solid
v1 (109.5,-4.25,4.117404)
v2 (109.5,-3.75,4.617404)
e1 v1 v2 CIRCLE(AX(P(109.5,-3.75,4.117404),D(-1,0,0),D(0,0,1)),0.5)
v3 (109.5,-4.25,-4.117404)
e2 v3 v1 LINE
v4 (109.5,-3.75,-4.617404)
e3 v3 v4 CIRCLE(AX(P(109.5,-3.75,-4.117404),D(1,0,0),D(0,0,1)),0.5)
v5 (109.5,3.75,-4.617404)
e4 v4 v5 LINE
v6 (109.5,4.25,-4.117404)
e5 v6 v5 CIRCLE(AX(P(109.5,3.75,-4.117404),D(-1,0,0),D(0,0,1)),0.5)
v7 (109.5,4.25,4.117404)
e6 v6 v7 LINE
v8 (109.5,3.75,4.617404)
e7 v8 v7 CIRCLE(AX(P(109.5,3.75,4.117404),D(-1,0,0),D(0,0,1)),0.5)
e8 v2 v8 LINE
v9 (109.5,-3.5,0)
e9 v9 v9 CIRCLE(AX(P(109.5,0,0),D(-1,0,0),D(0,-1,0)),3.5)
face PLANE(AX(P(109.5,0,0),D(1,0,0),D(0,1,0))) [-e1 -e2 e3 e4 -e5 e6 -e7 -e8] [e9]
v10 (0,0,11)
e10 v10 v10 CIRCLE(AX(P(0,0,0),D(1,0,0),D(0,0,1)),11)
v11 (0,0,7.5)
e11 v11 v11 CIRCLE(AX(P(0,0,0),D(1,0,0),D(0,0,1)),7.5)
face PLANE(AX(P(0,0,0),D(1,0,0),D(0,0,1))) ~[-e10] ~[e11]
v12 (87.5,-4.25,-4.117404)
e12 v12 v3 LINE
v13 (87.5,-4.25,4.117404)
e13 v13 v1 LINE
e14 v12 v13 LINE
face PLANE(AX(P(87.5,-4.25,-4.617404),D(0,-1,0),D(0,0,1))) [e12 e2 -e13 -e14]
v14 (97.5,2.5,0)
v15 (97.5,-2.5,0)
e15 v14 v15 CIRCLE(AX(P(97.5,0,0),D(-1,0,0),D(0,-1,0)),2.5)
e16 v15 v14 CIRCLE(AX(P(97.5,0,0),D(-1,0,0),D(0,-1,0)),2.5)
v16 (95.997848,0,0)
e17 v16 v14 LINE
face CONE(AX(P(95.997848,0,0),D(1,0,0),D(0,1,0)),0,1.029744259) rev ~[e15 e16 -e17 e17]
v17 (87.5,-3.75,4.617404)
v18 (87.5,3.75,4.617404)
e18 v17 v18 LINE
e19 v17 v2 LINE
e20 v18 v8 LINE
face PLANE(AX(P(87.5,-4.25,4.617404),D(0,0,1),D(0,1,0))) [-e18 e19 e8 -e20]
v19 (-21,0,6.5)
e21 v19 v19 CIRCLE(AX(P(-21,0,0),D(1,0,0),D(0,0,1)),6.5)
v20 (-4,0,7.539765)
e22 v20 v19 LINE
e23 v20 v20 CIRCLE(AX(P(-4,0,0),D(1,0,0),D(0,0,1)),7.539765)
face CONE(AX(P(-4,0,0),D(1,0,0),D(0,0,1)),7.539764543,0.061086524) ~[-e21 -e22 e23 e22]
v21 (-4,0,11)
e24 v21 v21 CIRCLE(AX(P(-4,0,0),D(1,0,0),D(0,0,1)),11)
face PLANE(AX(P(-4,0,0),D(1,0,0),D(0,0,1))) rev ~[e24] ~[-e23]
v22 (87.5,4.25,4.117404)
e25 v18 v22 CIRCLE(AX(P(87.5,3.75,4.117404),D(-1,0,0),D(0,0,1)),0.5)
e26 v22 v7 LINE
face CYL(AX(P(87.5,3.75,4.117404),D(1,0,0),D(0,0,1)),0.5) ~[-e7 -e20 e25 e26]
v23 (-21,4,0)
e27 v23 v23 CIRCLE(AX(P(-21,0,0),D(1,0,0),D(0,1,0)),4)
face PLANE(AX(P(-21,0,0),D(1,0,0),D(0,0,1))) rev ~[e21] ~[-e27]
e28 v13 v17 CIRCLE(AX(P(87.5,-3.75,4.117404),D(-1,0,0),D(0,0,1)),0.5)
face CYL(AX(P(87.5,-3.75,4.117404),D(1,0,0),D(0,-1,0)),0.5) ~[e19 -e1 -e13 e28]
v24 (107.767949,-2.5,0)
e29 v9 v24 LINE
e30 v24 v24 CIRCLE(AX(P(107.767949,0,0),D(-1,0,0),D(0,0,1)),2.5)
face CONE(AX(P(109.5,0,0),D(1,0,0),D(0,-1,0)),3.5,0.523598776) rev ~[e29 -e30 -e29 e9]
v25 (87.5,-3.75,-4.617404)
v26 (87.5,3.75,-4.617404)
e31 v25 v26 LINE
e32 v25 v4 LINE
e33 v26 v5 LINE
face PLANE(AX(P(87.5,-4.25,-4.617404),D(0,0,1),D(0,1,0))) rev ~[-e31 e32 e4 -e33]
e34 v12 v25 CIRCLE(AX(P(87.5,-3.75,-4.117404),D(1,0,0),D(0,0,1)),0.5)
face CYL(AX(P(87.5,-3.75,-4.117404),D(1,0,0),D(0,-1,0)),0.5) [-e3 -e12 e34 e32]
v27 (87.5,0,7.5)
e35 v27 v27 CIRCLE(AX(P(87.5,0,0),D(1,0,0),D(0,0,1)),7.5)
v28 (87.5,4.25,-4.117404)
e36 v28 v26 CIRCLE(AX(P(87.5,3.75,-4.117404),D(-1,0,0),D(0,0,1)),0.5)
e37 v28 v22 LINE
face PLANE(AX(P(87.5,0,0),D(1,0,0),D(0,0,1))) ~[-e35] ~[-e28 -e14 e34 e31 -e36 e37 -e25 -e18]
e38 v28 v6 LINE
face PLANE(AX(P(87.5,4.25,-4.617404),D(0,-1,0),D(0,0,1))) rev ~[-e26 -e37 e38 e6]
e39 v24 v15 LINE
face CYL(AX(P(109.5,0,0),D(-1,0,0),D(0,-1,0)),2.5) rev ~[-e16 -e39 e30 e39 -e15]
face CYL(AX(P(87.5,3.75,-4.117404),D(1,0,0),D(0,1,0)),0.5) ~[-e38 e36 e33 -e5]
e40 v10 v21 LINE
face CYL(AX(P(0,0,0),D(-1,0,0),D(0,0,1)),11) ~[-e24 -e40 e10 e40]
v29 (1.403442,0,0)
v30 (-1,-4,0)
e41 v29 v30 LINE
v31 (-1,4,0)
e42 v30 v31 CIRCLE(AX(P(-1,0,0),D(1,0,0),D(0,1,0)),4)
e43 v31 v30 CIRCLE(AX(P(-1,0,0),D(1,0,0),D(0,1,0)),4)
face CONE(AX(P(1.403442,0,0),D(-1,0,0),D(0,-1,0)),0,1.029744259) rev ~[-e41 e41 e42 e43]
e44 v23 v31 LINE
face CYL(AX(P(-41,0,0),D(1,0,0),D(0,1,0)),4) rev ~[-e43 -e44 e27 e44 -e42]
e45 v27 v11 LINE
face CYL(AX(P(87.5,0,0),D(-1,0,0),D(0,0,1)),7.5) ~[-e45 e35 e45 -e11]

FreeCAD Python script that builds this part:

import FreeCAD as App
import Part
import Sketcher
Q = App.Units.Quantity


def edges_at(feature, points):
    """Names of the edges that pass closest to the given points."""
    edges = feature.Shape.Edges
    near = lambda p: min(range(len(edges)), key=lambda i: edges[i].distToShape(Part.Vertex(*p))[0])
    return sorted({f"Edge{near(p) + 1}" for p in points})

doc = App.newDocument("Part")
params = doc.addObject("Spreadsheet::Sheet", "Params")
for row, (alias, value) in enumerate([
    ("sketch1_width", "4 mm"),
    ("sketch1_width2", "108.5 mm"),
    ("sketch1_width3", "87.5 mm"),
    ("sketch1_height", "6.5 mm"),
    ("sketch1_height2", "7.5 mm"),
    ("revolution_angle", "360 deg"),
    ("sketch2_width", "8.5 mm"),
    ("pad1_length", "22 mm"),
    ("sketch3_diameter", "8 mm"),
    ("hole_diameter", "8 mm"),
    ("hole_depth", "20 mm"),
    ("fillet_radius", "0.5 mm"),
    ("sketch4_diameter", "5 mm"),
    ("hole2_diameter", "5 mm"),
    ("hole2_depth", "12 mm"),
    ("hole2_csink_diameter", "7 mm"),
], start=1):
    params.set(f"A{row}", alias)
    params.set(f"B{row}", "=" + value)
    params.setAlias(f"B{row}", alias)

body = doc.addObject("PartDesign::Body", "Body")

# Sketch on XZ plane
sketch1 = doc.addObject("Sketcher::SketchObject", "Sketch")
body.addObject(sketch1)
sketch1.AttachmentSupport = (doc.XZ_Plane, [""])
sketch1.MapMode = "FlatFace"
sketch1.addGeometry(Part.LineSegment(App.Vector(-21, 6.5, 0), App.Vector(-21, 0, 0)), False)
sketch1.addGeometry(Part.LineSegment(App.Vector(-21, 0, 0), App.Vector(87.5, 0, 0)), False)
sketch1.addGeometry(Part.LineSegment(App.Vector(87.5, 0, 0), App.Vector(87.5, 7.5, 0)), False)
sketch1.addGeometry(Part.LineSegment(App.Vector(87.5, 7.5, 0), App.Vector(0, 7.5, 0)), False)
sketch1.addGeometry(Part.LineSegment(App.Vector(0, 7.5, 0), App.Vector(0, 11, 0)), False)
sketch1.addGeometry(Part.LineSegment(App.Vector(0, 11, 0), App.Vector(-4, 11, 0)), False)
sketch1.addGeometry(Part.LineSegment(App.Vector(-4, 11, 0), App.Vector(-4, 7.5, 0)), False)
sketch1.addGeometry(Part.LineSegment(App.Vector(-4, 7.5, 0), App.Vector(-21, 6.5, 0)), False)
sketch1.addConstraint(Sketcher.Constraint("Coincident", 0, 2, 1, 1))
sketch1.addConstraint(Sketcher.Constraint("Coincident", 1, 2, 2, 1))
sketch1.addConstraint(Sketcher.Constraint("Coincident", 2, 2, 3, 1))
sketch1.addConstraint(Sketcher.Constraint("Coincident", 3, 2, 4, 1))
sketch1.addConstraint(Sketcher.Constraint("Coincident", 4, 2, 5, 1))
sketch1.addConstraint(Sketcher.Constraint("Coincident", 5, 2, 6, 1))
sketch1.addConstraint(Sketcher.Constraint("Coincident", 6, 2, 7, 1))
sketch1.addConstraint(Sketcher.Constraint("Coincident", 7, 2, 0, 1))
sketch1.addConstraint(Sketcher.Constraint("Vertical", 0))
sketch1.addConstraint(Sketcher.Constraint("Horizontal", 1))
sketch1.addConstraint(Sketcher.Constraint("Vertical", 2))
sketch1.addConstraint(Sketcher.Constraint("Horizontal", 3))
sketch1.addConstraint(Sketcher.Constraint("Vertical", 4))
sketch1.addConstraint(Sketcher.Constraint("Horizontal", 5))
sketch1.addConstraint(Sketcher.Constraint("Vertical", 6))
sketch1.addConstraint(Sketcher.Constraint("PointOnObject", 0, 2, -1))
sketch1.addConstraint(Sketcher.Constraint("PointOnObject", 3, 2, -2))
sketch1.addConstraint(Sketcher.Constraint("DistanceX", 5, 2, 5, 1, 4.0))
sketch1.addConstraint(Sketcher.Constraint("DistanceX", 1, 1, 1, 2, 108.5))
sketch1.addConstraint(Sketcher.Constraint("DistanceX", 3, 2, 3, 1, 87.5))
sketch1.addConstraint(Sketcher.Constraint("DistanceY", 0, 2, 0, 1, 6.5))
sketch1.addConstraint(Sketcher.Constraint("DistanceY", 2, 1, 2, 2, 7.5))
sketch1.addConstraint(Sketcher.Constraint("DistanceY", 4, 1, 4, 2, 3.5))
sketch1.addConstraint(Sketcher.Constraint("Angle", 7, Q("-176.5 deg")))
sketch1.setExpression("Constraints[17]", "Params.sketch1_width")
sketch1.setExpression("Constraints[18]", "Params.sketch1_width2")
sketch1.setExpression("Constraints[19]", "Params.sketch1_width3")
sketch1.setExpression("Constraints[20]", "Params.sketch1_height")
sketch1.setExpression("Constraints[21]", "Params.sketch1_height2")
revolution = doc.addObject("PartDesign::Revolution", "Revolution")
body.addObject(revolution)
revolution.Profile = sketch1
revolution.ReferenceAxis = (sketch1, ["H_Axis"])
revolution.setExpression("Angle", "Params.revolution_angle")

# Sketch on YZ plane
sketch2 = doc.addObject("Sketcher::SketchObject", "Sketch001")
body.addObject(sketch2)
sketch2.AttachmentSupport = (doc.YZ_Plane, [""])
sketch2.MapMode = "FlatFace"
sketch2.AttachmentOffset = App.Placement(App.Vector(0, 0, 87.5), App.Rotation())
sketch2.addGeometry(Part.LineSegment(App.Vector(-4, 5, 0), App.Vector(-4, -5, 0)), False)
sketch2.addGeometry(Part.LineSegment(App.Vector(-4, -5, 0), App.Vector(4, -5, 0)), False)
sketch2.addGeometry(Part.LineSegment(App.Vector(4, -5, 0), App.Vector(4, 5, 0)), False)
sketch2.addGeometry(Part.LineSegment(App.Vector(4, 5, 0), App.Vector(-4, 5, 0)), False)
sketch2.addConstraint(Sketcher.Constraint("Coincident", 0, 2, 1, 1))
sketch2.addConstraint(Sketcher.Constraint("Coincident", 1, 2, 2, 1))
sketch2.addConstraint(Sketcher.Constraint("Coincident", 2, 2, 3, 1))
sketch2.addConstraint(Sketcher.Constraint("Coincident", 3, 2, 0, 1))
sketch2.addConstraint(Sketcher.Constraint("Vertical", 0))
sketch2.addConstraint(Sketcher.Constraint("Horizontal", 1))
sketch2.addConstraint(Sketcher.Constraint("Vertical", 2))
sketch2.addConstraint(Sketcher.Constraint("Horizontal", 3))
sketch2.addConstraint(Sketcher.Constraint("Symmetric", 0, 2, 2, 2, -1, 1))
sketch2.addConstraint(Sketcher.Constraint("DistanceX", 1, 1, 1, 2, 8.5))
sketch2.addConstraint(Sketcher.Constraint("DistanceY", 0, 2, 0, 1, 9.234807))
sketch2.setExpression("Constraints[9]", "Params.sketch2_width")
pad1 = doc.addObject("PartDesign::Pad", "Pad")
body.addObject(pad1)
pad1.Profile = sketch2
pad1.setExpression("Length", "Params.pad1_length")

# Sketch on YZ plane
sketch3 = doc.addObject("Sketcher::SketchObject", "Sketch002")
body.addObject(sketch3)
sketch3.AttachmentSupport = (doc.YZ_Plane, [""])
sketch3.MapMode = "FlatFace"
sketch3.AttachmentOffset = App.Placement(App.Vector(0, 0, -21), App.Rotation())
sketch3.addGeometry(Part.Circle(App.Vector(0, 0, 0), App.Vector(0, 0, 1), 4), False)
sketch3.addConstraint(Sketcher.Constraint("Coincident", 0, 3, -1, 1))
sketch3.addConstraint(Sketcher.Constraint("Diameter", 0, 8.0))
sketch3.setExpression("Constraints[1]", "Params.sketch3_diameter")
doc.recompute()
hole = doc.addObject("PartDesign::Hole", "Hole")
body.addObject(hole)
hole.Profile = sketch3
hole.ThreadType = "None"
hole.setExpression("Diameter", "Params.hole_diameter")
hole.DepthType = "Dimension"
hole.setExpression("Depth", "Params.hole_depth")
hole.DrillPoint = "Angled"
hole.DrillPointAngle = 118
hole.Reversed = True
doc.recompute()

fillet = doc.addObject("PartDesign::Fillet", "Fillet")
body.addObject(fillet)
fillet.Base = (hole, edges_at(hole, [
    (98.5, -4.25, 4.617),
    (98.5, -4.25, -4.617),
    (98.5, 4.25, 4.617),
    (98.5, 4.25, -4.617),
]))
fillet.setExpression("Radius", "Params.fillet_radius")

# Sketch on YZ plane
sketch4 = doc.addObject("Sketcher::SketchObject", "Sketch003")
body.addObject(sketch4)
sketch4.AttachmentSupport = (doc.YZ_Plane, [""])
sketch4.MapMode = "FlatFace"
sketch4.AttachmentOffset = App.Placement(App.Vector(0, 0, 109.5), App.Rotation())
sketch4.addGeometry(Part.Circle(App.Vector(0, 0, 0), App.Vector(0, 0, 1), 2.5), False)
sketch4.addConstraint(Sketcher.Constraint("Coincident", 0, 3, -1, 1))
sketch4.addConstraint(Sketcher.Constraint("Diameter", 0, 5.0))
sketch4.setExpression("Constraints[1]", "Params.sketch4_diameter")
doc.recompute()
hole2 = doc.addObject("PartDesign::Hole", "Hole001")
body.addObject(hole2)
hole2.Profile = sketch4
hole2.ThreadType = "None"
hole2.setExpression("Diameter", "Params.hole2_diameter")
hole2.DepthType = "Dimension"
hole2.setExpression("Depth", "Params.hole2_depth")
hole2.DrillPoint = "Angled"
hole2.DrillPointAngle = 118
hole2.HoleCutType = "Countersink"
hole2.setExpression("HoleCutDiameter", "Params.hole2_csink_diameter")
hole2.HoleCutCountersinkAngle = 60

doc.recompute()
